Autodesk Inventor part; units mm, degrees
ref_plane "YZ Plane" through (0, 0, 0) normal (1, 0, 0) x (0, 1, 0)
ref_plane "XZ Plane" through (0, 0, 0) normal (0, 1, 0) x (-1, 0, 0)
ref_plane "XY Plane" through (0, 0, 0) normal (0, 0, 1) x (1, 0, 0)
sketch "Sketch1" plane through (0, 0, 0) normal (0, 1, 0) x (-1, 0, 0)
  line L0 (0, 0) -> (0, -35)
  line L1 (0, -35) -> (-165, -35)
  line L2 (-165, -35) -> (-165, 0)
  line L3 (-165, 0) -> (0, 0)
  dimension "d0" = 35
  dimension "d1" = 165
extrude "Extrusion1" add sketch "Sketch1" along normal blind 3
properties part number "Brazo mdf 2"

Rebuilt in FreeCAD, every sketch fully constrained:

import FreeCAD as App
import Part
import Sketcher

V = App.Vector


def add_polygon(sketch, points):
    """Adds a closed chain of lines whose ends are joined by coincident constraints."""
    first, n = sketch.GeometryCount, len(points)
    for a, b in zip(points, points[1:] + points[:1]):
        sketch.addGeometry(Part.LineSegment(App.Vector(*a, 0), App.Vector(*b, 0)), False)
    for i in range(n):
        sketch.addConstraint(Sketcher.Constraint("Coincident", first + i, 2, first + (i + 1) % n, 1))

doc = App.newDocument("Part")
body = doc.addObject("PartDesign::Body", "Body")

# Sketch on XZ plane
sketch1 = doc.addObject("Sketcher::SketchObject", "Sketch")
body.addObject(sketch1)
sketch1.AttachmentSupport = (doc.XZ_Plane, [""])
sketch1.MapMode = "FlatFace"
add_polygon(sketch1, [(0, -35), (0, 0), (165, 0), (165, -35)])  # lines 0-3
sketch1.addConstraint([
    Sketcher.Constraint("Vertical", 0),
    Sketcher.Constraint("Horizontal", 1),
    Sketcher.Constraint("Vertical", 2),
    Sketcher.Constraint("Horizontal", 3),
    Sketcher.Constraint("Coincident", 0, 2, -1, 1),
    Sketcher.Constraint("DistanceX", 1, 1, 1, 2, 165.0),
    Sketcher.Constraint("DistanceY", 0, 1, 0, 2, 35.0),
])
pad1 = doc.addObject("PartDesign::Pad", "Pad")
body.addObject(pad1)
pad1.Profile = sketch1
pad1.Length = 3
pad1.Reversed = True

doc.recompute()
